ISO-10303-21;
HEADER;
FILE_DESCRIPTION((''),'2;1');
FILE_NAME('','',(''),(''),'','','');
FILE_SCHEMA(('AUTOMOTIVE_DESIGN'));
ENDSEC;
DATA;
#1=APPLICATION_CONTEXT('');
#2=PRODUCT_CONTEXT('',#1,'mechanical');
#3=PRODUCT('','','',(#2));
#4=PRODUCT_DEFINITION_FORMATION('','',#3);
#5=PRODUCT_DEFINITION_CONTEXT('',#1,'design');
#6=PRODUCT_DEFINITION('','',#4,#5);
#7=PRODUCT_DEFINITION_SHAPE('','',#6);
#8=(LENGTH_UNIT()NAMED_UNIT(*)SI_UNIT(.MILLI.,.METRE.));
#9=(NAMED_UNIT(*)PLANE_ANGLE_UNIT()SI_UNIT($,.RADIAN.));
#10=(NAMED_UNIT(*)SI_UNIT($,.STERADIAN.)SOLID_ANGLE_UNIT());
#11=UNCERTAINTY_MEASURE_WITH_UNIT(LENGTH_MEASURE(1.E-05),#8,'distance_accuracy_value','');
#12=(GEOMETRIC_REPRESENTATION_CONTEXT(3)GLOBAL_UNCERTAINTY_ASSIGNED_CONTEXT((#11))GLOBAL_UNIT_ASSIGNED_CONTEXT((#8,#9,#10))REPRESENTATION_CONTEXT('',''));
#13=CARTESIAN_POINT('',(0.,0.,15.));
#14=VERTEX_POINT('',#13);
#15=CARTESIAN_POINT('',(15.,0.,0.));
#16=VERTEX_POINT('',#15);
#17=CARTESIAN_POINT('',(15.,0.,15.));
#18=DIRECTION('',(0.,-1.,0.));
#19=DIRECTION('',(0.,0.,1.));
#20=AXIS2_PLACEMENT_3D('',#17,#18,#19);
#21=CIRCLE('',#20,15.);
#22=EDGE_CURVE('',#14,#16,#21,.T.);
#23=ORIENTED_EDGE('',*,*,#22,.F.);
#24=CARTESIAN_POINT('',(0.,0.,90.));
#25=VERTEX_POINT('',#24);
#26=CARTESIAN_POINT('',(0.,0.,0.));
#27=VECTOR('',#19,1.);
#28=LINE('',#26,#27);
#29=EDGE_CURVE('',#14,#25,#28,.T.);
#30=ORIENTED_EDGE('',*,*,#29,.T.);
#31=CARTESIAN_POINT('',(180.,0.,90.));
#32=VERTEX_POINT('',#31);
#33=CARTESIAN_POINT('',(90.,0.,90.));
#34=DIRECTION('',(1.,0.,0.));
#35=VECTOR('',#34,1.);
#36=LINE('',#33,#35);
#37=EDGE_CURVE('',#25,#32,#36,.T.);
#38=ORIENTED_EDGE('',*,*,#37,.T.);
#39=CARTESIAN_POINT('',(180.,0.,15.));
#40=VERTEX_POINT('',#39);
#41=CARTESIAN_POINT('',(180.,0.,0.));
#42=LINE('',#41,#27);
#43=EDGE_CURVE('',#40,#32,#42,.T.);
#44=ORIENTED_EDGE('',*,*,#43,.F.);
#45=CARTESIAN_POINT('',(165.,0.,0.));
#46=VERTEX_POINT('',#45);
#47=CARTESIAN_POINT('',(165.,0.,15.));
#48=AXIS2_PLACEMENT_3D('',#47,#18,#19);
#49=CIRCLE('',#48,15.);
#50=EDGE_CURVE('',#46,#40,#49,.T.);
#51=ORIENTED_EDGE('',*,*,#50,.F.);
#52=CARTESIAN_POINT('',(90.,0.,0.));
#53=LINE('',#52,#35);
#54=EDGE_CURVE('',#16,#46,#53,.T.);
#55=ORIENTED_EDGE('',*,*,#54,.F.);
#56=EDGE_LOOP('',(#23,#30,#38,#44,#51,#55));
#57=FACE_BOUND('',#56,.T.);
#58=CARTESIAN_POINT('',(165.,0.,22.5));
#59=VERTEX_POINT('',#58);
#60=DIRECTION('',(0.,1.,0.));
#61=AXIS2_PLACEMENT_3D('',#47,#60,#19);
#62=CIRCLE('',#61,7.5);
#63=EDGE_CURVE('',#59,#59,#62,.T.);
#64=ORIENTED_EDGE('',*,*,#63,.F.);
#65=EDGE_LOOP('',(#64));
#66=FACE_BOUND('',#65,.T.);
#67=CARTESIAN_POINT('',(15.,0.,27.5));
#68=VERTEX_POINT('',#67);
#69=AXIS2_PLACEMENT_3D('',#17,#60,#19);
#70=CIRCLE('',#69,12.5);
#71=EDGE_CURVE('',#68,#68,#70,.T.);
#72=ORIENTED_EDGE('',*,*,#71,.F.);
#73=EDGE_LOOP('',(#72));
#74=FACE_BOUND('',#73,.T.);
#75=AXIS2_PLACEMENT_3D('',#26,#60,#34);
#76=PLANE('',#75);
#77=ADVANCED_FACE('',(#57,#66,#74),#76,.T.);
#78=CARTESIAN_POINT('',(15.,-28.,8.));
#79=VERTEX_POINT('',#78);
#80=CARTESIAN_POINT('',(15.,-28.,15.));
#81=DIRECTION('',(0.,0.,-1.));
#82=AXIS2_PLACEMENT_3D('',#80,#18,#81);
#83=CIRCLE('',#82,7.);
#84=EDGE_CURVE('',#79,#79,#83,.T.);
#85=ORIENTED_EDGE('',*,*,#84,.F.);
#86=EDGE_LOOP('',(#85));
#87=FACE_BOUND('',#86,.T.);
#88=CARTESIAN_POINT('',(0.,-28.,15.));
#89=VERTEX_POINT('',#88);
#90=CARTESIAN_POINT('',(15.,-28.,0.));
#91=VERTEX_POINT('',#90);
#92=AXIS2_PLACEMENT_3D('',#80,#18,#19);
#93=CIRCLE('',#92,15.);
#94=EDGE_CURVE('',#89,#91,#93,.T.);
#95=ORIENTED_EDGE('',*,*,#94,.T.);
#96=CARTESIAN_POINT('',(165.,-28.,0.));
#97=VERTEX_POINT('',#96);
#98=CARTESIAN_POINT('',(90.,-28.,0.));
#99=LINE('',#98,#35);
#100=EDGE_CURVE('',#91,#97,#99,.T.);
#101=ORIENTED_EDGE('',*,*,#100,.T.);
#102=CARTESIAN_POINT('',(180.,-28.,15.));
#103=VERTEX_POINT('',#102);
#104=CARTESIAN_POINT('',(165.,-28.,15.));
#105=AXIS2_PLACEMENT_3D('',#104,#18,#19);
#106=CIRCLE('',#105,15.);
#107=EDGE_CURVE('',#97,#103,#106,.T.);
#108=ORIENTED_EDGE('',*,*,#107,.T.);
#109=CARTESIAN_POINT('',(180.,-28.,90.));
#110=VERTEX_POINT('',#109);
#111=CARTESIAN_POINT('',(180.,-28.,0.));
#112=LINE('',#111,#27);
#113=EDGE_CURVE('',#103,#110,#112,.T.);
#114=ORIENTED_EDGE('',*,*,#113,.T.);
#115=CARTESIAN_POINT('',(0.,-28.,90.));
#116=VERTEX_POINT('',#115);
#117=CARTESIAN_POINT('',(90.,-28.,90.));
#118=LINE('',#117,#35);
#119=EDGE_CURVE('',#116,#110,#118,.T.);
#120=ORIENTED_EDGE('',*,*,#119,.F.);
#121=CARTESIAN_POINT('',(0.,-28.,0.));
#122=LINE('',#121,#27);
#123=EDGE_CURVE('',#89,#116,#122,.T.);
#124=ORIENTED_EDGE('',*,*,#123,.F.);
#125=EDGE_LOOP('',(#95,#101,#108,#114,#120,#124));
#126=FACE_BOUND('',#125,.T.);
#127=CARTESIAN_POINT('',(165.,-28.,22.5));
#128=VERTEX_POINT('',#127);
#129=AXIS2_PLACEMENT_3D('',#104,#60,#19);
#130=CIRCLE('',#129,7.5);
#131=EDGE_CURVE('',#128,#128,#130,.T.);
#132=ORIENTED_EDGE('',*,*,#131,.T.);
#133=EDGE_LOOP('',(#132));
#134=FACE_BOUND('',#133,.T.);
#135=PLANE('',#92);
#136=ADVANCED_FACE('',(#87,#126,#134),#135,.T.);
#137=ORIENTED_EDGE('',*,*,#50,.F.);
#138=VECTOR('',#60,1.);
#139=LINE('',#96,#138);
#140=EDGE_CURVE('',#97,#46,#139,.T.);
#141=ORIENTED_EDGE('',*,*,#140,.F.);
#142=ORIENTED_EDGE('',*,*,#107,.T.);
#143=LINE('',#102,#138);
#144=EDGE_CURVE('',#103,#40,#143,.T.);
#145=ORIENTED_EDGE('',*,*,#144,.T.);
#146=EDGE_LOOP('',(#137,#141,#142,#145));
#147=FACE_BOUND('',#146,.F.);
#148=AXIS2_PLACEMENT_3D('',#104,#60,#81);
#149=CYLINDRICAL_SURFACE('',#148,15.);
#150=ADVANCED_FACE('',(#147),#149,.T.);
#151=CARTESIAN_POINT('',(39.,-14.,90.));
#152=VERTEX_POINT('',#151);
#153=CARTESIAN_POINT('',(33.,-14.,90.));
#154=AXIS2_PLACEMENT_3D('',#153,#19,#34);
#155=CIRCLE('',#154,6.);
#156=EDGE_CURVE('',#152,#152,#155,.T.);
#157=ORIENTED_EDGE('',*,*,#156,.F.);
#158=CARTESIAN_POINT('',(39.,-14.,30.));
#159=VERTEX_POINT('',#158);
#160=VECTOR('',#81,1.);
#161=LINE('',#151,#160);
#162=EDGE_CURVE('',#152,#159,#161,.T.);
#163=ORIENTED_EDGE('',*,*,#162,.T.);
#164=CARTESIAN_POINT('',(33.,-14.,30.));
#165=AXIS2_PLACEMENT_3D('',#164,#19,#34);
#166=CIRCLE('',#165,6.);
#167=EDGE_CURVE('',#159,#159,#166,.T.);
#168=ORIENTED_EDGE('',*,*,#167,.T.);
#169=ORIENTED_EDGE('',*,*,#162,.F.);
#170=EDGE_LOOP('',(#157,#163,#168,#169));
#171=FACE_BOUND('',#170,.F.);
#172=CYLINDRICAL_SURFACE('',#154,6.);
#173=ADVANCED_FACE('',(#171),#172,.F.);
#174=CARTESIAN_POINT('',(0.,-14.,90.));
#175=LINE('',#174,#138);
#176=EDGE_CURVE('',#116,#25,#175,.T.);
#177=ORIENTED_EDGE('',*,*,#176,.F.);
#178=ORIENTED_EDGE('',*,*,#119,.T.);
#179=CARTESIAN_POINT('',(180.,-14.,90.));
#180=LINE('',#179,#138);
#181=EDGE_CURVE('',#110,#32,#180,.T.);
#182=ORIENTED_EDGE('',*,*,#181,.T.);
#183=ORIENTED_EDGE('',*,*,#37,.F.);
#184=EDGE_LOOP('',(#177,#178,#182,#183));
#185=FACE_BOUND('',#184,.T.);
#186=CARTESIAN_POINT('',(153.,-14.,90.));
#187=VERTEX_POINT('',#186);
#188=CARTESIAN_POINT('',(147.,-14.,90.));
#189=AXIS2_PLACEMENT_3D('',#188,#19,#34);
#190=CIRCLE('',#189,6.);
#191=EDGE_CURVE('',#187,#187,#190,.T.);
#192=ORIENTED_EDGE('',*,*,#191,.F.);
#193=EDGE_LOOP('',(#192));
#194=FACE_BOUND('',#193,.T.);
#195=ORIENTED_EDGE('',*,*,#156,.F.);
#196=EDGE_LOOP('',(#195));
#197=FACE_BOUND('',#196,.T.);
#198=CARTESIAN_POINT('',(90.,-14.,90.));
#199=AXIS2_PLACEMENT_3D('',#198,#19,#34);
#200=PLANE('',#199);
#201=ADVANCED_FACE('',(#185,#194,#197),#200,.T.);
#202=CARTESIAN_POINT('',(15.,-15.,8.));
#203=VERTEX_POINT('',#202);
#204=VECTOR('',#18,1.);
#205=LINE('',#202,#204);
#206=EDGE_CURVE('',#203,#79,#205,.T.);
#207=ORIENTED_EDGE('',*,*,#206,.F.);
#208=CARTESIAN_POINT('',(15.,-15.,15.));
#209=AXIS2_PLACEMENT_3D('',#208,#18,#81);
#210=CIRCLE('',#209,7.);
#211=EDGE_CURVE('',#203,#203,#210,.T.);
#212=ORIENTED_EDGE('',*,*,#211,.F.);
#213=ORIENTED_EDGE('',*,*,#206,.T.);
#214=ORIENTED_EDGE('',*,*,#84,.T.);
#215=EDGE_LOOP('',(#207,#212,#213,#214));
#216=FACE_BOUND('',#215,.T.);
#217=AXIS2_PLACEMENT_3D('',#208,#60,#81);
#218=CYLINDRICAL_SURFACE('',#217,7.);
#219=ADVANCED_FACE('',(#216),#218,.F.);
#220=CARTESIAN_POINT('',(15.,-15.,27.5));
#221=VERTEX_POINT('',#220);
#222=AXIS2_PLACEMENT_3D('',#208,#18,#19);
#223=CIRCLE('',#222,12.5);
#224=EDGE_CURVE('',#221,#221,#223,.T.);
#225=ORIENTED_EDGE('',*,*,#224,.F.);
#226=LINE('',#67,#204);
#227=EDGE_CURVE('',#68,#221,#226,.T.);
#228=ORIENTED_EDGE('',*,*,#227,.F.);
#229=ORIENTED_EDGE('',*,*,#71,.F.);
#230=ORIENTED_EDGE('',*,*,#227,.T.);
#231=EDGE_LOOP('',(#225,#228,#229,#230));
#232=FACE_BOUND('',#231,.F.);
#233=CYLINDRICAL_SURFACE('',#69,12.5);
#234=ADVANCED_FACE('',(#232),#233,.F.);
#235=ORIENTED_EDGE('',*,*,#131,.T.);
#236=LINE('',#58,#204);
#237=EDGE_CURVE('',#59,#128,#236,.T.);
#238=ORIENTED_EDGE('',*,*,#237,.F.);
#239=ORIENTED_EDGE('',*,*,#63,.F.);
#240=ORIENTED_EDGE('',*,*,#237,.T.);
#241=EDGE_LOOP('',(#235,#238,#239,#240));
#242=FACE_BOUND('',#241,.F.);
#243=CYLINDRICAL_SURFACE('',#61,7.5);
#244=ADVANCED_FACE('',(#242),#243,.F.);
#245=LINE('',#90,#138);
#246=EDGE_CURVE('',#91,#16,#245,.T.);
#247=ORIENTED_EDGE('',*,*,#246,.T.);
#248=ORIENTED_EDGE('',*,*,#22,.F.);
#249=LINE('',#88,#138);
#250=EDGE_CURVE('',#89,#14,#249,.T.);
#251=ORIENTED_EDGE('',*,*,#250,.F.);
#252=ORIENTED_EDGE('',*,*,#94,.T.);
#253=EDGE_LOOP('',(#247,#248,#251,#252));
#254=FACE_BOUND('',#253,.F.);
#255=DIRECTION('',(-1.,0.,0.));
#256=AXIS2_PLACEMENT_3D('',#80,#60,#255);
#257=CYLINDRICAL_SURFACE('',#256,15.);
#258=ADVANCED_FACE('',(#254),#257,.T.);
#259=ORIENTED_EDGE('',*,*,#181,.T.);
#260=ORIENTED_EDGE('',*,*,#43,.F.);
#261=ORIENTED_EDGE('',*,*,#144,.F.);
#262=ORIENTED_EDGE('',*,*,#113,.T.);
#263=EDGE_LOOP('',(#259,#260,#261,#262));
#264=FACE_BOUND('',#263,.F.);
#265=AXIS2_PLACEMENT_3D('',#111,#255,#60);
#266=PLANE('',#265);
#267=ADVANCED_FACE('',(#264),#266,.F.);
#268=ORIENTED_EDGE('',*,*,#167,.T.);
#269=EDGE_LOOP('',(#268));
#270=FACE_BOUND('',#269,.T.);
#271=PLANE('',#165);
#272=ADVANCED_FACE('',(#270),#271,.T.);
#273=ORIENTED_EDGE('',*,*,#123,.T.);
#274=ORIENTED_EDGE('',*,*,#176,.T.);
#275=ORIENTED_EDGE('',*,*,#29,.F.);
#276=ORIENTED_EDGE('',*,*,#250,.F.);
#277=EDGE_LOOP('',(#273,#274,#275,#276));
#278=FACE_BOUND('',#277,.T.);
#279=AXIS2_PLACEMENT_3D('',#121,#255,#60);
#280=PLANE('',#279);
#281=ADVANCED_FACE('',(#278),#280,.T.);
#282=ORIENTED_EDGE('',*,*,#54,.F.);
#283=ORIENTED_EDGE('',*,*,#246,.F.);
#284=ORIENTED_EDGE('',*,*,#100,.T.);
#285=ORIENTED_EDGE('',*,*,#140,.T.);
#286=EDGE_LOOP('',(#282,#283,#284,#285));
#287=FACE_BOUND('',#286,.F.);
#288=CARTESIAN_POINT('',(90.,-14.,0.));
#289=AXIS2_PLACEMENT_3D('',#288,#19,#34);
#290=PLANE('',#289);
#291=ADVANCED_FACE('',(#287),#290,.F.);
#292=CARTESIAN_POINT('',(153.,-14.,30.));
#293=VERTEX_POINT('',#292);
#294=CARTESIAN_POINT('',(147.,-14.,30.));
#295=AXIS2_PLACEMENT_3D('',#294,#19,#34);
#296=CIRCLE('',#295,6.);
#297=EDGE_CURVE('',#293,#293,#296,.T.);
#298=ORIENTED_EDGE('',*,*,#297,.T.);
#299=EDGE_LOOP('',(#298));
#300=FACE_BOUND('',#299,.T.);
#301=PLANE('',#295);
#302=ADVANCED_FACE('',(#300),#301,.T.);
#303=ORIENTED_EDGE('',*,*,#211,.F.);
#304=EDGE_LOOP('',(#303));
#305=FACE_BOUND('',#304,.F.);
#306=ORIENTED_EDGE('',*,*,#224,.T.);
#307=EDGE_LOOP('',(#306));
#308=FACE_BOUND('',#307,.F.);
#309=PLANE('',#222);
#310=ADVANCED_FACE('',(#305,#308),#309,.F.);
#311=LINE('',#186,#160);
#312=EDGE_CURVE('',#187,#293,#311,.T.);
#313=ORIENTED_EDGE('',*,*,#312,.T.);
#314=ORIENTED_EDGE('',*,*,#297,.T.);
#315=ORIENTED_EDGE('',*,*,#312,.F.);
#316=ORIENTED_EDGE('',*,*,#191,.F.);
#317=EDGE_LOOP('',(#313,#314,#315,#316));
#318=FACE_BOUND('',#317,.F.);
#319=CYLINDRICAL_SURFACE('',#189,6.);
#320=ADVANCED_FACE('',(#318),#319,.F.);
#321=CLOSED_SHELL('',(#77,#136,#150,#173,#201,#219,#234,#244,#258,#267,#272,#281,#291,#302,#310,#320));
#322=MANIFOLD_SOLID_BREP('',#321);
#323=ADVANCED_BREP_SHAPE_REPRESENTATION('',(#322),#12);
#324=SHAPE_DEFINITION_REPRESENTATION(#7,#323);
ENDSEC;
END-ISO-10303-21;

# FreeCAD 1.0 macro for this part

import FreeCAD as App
import Part
import Sketcher


def edges_at(feature, points):
    """Names of the edges that pass closest to the given points."""
    edges = feature.Shape.Edges
    near = lambda p: min(range(len(edges)), key=lambda i: edges[i].distToShape(Part.Vertex(*p))[0])
    return sorted({f"Edge{near(p) + 1}" for p in points})


def add_polygon(sketch, points):
    """Adds a closed chain of lines whose ends are joined by coincident constraints."""
    first, n = sketch.GeometryCount, len(points)
    for a, b in zip(points, points[1:] + points[:1]):
        sketch.addGeometry(Part.LineSegment(App.Vector(*a, 0), App.Vector(*b, 0)), False)
    for i in range(n):
        sketch.addConstraint(Sketcher.Constraint("Coincident", first + i, 2, first + (i + 1) % n, 1))

doc = App.newDocument("Part")
params = doc.addObject("Spreadsheet::Sheet", "Params")
for row, (alias, value) in enumerate([
    ("sketch1_width", "180 mm"),
    ("sketch1_height", "28 mm"),
    ("pad1_length", "90 mm"),
    ("sketch2_diameter", "12 mm"),
    ("pocket1_length", "60 mm"),
    ("sketch3_diameter", "25 mm"),
    ("sketch3_diameter2", "15 mm"),
    ("pocket2_length", "30 mm"),
    ("fillet_radius", "15 mm"),
    ("sketch4_diameter", "25 mm"),
    ("sketch4_diameter2", "14 mm"),
    ("pad2_length", "13 mm"),
], start=1):
    params.set(f"A{row}", alias)
    params.set(f"B{row}", "=" + value)
    params.setAlias(f"B{row}", alias)

body = doc.addObject("PartDesign::Body", "Body")

# Sketch on XY plane
sketch1 = body.newObject("Sketcher::SketchObject", "Sketch")
sketch1.AttachmentSupport = (doc.getObject("XY_Plane"), [""])
sketch1.MapMode = "FlatFace"
add_polygon(sketch1, [(0, 0), (0, -28), (180, -28), (180, 0)])  # lines 0-3
sketch1.addConstraint(Sketcher.Constraint("Vertical", 0))
sketch1.addConstraint(Sketcher.Constraint("Horizontal", 1))
sketch1.addConstraint(Sketcher.Constraint("Vertical", 2))
sketch1.addConstraint(Sketcher.Constraint("Horizontal", 3))
sketch1.addConstraint(Sketcher.Constraint("Coincident", 3, 2, -1, 1))
sketch1.addConstraint(Sketcher.Constraint("DistanceX", 1, 1, 1, 2, 180.0))
sketch1.addConstraint(Sketcher.Constraint("DistanceY", 0, 2, 0, 1, 28.0))
sketch1.setExpression("Constraints[9]", "Params.sketch1_width")
sketch1.setExpression("Constraints[10]", "Params.sketch1_height")
pad1 = body.newObject("PartDesign::Pad", "Pad")
pad1.Profile = sketch1
pad1.setExpression("Length", "Params.pad1_length")

# Sketch on XY plane
sketch2 = body.newObject("Sketcher::SketchObject", "Sketch001")
sketch2.AttachmentSupport = (doc.getObject("XY_Plane"), [""])
sketch2.MapMode = "FlatFace"
sketch2.AttachmentOffset = App.Placement(App.Vector(0, 0, 90), App.Rotation())
sketch2.addGeometry(Part.Circle(App.Vector(33, -14, 0), App.Vector(0, 0, 1), 6), False)
sketch2.addGeometry(Part.Circle(App.Vector(147, -14, 0), App.Vector(0, 0, 1), 6), False)
sketch2.addConstraint(Sketcher.Constraint("Equal", 0, 1))
sketch2.addConstraint(Sketcher.Constraint("Horizontal", 0, 3, 1, 3))
sketch2.addConstraint(Sketcher.Constraint("Diameter", 0, 12.0))
sketch2.addConstraint(Sketcher.Constraint("DistanceX", -1, 1, 0, 3, 33.0))
sketch2.addConstraint(Sketcher.Constraint("DistanceY", 0, 3, -1, 1, 14.0))
sketch2.addConstraint(Sketcher.Constraint("DistanceX", -1, 1, 1, 3, 147.0))
sketch2.setExpression("Constraints[2]", "Params.sketch2_diameter")
pocket1 = body.newObject("PartDesign::Pocket", "Pocket")
pocket1.Profile = sketch2
pocket1.setExpression("Length", "Params.pocket1_length")

# Sketch on XZ plane
sketch3 = body.newObject("Sketcher::SketchObject", "Sketch002")
sketch3.AttachmentSupport = (doc.getObject("XZ_Plane"), [""])
sketch3.MapMode = "FlatFace"
sketch3.addGeometry(Part.Circle(App.Vector(15, 15, 0), App.Vector(0, 0, 1), 12.5), False)
sketch3.addGeometry(Part.Circle(App.Vector(165, 15, 0), App.Vector(0, 0, 1), 7.5), False)
sketch3.addConstraint(Sketcher.Constraint("Horizontal", 0, 3, 1, 3))
sketch3.addConstraint(Sketcher.Constraint("Diameter", 0, 25.0))
sketch3.addConstraint(Sketcher.Constraint("Diameter", 1, 15.0))
sketch3.addConstraint(Sketcher.Constraint("DistanceX", -1, 1, 0, 3, 15.0))
sketch3.addConstraint(Sketcher.Constraint("DistanceY", -1, 1, 0, 3, 15.0))
sketch3.addConstraint(Sketcher.Constraint("DistanceX", -1, 1, 1, 3, 165.0))
sketch3.setExpression("Constraints[1]", "Params.sketch3_diameter")
sketch3.setExpression("Constraints[2]", "Params.sketch3_diameter2")
pocket2 = body.newObject("PartDesign::Pocket", "Pocket001")
pocket2.Profile = sketch3
pocket2.setExpression("Length", "Params.pocket2_length")
pocket2.Reversed = True
doc.recompute()

fillet = body.newObject("PartDesign::Fillet", "Fillet")
fillet.Base = (pocket2, edges_at(pocket2, [(180, -14, 0), (0, -14, 0)]))
fillet.setExpression("Radius", "Params.fillet_radius")

# Sketch on XZ plane
sketch4 = body.newObject("Sketcher::SketchObject", "Sketch003")
sketch4.AttachmentSupport = (doc.getObject("XZ_Plane"), [""])
sketch4.MapMode = "FlatFace"
sketch4.AttachmentOffset = App.Placement(App.Vector(0, 0, 15), App.Rotation())
sketch4.addGeometry(Part.Circle(App.Vector(15, 15, 0), App.Vector(0, 0, 1), 12.5), False)
sketch4.addGeometry(Part.Circle(App.Vector(15, 15, 0), App.Vector(0, 0, 1), 7), False)
sketch4.addConstraint(Sketcher.Constraint("Coincident", 1, 3, 0, 3))
sketch4.addConstraint(Sketcher.Constraint("Diameter", 0, 25.0))
sketch4.addConstraint(Sketcher.Constraint("Diameter", 1, 14.0))
sketch4.addConstraint(Sketcher.Constraint("DistanceX", -1, 1, 0, 3, 15.0))
sketch4.addConstraint(Sketcher.Constraint("DistanceY", -1, 1, 0, 3, 15.0))
sketch4.setExpression("Constraints[1]", "Params.sketch4_diameter")
sketch4.setExpression("Constraints[2]", "Params.sketch4_diameter2")
pad2 = body.newObject("PartDesign::Pad", "Pad001")
pad2.Profile = sketch4
pad2.setExpression("Length", "Params.pad2_length")

doc.recompute()
